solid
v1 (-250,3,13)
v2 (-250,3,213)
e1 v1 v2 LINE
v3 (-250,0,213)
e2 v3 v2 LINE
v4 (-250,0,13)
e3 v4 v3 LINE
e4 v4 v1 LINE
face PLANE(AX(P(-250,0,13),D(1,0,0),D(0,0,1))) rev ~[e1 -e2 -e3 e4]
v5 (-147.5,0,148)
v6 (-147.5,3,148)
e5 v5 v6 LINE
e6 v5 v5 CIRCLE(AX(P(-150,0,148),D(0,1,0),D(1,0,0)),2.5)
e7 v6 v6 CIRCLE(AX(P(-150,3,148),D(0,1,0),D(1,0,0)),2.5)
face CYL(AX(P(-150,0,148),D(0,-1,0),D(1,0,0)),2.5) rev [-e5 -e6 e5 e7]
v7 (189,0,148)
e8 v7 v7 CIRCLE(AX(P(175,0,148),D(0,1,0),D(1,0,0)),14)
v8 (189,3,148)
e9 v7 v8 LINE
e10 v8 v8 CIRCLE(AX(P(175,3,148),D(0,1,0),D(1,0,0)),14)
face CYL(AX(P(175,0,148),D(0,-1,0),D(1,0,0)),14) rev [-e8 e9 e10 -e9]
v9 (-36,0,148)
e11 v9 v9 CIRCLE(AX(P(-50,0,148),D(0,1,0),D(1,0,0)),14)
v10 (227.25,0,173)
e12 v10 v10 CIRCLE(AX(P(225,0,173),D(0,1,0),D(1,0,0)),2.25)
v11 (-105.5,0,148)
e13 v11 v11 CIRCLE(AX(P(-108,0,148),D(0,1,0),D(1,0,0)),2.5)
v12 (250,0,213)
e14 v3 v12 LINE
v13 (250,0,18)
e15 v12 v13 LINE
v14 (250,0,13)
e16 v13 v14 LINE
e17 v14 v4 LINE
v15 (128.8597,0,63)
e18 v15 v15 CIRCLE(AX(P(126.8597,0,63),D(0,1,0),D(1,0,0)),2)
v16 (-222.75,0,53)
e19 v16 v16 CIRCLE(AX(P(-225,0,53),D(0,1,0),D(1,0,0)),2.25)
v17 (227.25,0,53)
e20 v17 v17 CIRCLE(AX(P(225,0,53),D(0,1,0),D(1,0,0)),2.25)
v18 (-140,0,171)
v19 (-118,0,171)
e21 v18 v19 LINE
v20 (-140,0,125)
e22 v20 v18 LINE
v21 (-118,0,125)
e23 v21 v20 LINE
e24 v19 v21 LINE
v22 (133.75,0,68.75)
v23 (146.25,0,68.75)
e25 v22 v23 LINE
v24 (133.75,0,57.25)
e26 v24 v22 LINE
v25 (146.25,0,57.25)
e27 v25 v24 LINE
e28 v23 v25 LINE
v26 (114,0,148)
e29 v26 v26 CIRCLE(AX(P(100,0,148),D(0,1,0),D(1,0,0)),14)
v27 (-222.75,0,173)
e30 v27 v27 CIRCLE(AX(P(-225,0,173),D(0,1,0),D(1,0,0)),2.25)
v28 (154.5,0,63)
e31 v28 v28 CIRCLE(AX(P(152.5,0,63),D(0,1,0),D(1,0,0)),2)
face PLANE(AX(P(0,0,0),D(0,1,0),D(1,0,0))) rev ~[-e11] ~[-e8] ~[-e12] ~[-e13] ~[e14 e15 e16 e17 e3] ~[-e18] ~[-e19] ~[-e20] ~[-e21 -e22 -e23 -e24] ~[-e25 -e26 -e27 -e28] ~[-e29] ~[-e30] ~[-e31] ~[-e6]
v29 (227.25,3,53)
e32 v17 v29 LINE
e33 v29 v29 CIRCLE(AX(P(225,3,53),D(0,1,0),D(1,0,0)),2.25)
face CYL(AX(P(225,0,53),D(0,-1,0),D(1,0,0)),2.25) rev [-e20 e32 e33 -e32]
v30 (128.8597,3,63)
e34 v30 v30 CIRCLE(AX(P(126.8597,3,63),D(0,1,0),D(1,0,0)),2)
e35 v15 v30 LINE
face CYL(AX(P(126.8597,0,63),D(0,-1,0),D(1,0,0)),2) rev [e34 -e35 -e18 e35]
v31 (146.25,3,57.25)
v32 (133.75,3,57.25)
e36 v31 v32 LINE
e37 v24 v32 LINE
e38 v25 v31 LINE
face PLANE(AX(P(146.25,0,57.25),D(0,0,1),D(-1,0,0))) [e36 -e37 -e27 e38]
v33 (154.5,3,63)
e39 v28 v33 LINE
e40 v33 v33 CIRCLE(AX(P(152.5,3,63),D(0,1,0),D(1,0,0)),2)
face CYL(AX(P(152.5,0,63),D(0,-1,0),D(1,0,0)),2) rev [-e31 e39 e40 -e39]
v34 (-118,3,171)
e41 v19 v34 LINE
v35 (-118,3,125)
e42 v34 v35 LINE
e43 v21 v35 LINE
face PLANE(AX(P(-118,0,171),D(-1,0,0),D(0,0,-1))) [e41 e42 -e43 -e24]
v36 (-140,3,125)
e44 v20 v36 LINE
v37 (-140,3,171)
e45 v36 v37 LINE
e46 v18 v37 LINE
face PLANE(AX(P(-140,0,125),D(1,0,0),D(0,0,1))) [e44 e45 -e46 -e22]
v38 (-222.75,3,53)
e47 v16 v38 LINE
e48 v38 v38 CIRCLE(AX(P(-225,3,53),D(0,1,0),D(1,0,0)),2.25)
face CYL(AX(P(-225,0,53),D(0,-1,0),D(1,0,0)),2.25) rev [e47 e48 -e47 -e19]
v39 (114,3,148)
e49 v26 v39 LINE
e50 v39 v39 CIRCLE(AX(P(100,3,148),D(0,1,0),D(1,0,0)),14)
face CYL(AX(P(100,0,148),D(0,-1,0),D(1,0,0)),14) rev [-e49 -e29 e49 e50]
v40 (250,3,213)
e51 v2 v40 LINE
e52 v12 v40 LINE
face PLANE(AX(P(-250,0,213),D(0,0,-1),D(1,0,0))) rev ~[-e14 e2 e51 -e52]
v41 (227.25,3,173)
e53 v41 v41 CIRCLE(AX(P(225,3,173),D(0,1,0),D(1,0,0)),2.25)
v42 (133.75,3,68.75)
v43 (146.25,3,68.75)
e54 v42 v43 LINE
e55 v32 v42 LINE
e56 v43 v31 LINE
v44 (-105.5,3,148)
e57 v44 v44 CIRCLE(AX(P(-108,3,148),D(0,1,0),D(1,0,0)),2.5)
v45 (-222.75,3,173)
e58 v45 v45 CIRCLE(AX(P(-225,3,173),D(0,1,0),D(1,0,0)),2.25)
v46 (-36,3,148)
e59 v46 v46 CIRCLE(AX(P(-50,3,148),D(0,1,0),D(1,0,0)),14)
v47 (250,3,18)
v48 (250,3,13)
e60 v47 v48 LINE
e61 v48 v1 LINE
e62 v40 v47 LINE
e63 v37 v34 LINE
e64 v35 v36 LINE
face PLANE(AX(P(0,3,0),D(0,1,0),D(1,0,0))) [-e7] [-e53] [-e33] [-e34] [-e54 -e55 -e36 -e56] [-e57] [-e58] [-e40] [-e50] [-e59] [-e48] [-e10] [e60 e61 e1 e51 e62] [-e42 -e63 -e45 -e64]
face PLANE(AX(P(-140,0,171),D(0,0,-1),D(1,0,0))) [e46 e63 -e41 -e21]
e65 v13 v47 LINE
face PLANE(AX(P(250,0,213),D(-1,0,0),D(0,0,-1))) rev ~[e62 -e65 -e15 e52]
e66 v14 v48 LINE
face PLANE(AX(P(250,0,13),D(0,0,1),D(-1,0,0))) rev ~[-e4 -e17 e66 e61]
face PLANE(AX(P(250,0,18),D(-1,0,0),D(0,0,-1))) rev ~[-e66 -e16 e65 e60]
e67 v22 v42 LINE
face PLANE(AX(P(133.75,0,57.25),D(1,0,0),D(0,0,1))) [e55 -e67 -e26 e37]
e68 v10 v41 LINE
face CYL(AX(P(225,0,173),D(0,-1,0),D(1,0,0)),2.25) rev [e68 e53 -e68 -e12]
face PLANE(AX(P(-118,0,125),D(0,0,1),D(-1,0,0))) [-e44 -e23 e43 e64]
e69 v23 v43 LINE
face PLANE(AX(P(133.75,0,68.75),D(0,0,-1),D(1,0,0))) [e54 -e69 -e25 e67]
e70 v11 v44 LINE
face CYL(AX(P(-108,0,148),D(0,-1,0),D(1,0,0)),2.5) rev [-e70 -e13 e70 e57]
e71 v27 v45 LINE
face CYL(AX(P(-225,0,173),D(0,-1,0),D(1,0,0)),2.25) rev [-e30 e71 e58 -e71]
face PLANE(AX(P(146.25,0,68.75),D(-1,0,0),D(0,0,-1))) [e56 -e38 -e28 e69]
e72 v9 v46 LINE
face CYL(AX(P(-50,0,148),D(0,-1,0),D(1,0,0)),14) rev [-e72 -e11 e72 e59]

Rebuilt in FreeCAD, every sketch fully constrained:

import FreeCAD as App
import Part
import Sketcher
from FreeCAD import Vector


def add_polygon(sketch, points):
    """Adds a closed chain of lines whose ends are joined by coincident constraints."""
    first, n = sketch.GeometryCount, len(points)
    for a, b in zip(points, points[1:] + points[:1]):
        sketch.addGeometry(Part.LineSegment(App.Vector(*a, 0), App.Vector(*b, 0)), False)
    for i in range(n):
        sketch.addConstraint(Sketcher.Constraint("Coincident", first + i, 2, first + (i + 1) % n, 1))

doc = App.newDocument("Part")
body = doc.addObject("PartDesign::Body", "Body")

sketch1 = body.newObject("Sketcher::SketchObject", "Sketch")
sketch1.AttachmentSupport = (doc.getObject("XZ_Plane"), [""])
sketch1.MapMode = "FlatFace"
add_polygon(sketch1, [(250, 213), (250, 13), (-250, 13), (-250, 213)])
sketch1.addGeometry(Part.Circle(Vector(-225, 173, 0), Vector(0, 0, 1), 2.2), False)
sketch1.addGeometry(Part.Circle(Vector(-150, 148, 0), Vector(0, 0, 1), 2.5), False)
add_polygon(sketch1, [(-140, 171), (-140, 125), (-118, 125), (-118, 171)])
sketch1.addGeometry(Part.Circle(Vector(-108, 148, 0), Vector(0, 0, 1), 2.5), False)
sketch1.addGeometry(Part.Circle(Vector(-50, 148, 0), Vector(0, 0, 1), 14), False)
sketch1.addGeometry(Part.Circle(Vector(225, 173, 0), Vector(0, 0, 1), 2.2), False)
sketch1.addGeometry(Part.Circle(Vector(100, 148, 0), Vector(0, 0, 1), 14), False)
sketch1.addGeometry(Part.Circle(Vector(175, 148, 0), Vector(0, 0, 1), 14), False)
sketch1.addGeometry(Part.Circle(Vector(-225, 53, 0), Vector(0, 0, 1), 2.2), False)
sketch1.addGeometry(Part.Circle(Vector(126.9, 63, 0), Vector(0, 0, 1), 2), False)
add_polygon(sketch1, [(133.8, 57.2), (146.2, 57.2), (146.2, 68.8), (133.8, 68.8)])
sketch1.addGeometry(Part.Circle(Vector(152.5, 63, 0), Vector(0, 0, 1), 2), False)
sketch1.addGeometry(Part.Circle(Vector(225, 53, 0), Vector(0, 0, 1), 2.2), False)
sketch1.addConstraint([
    Sketcher.Constraint("Vertical", 0),
    Sketcher.Constraint("Horizontal", 1),
    Sketcher.Constraint("Vertical", 2),
    Sketcher.Constraint("Horizontal", 3),
    Sketcher.Constraint("Vertical", 6),
    Sketcher.Constraint("Horizontal", 7),
    Sketcher.Constraint("Vertical", 8),
    Sketcher.Constraint("Horizontal", 9),
    Sketcher.Constraint("Horizontal", 17),
    Sketcher.Constraint("Vertical", 18),
    Sketcher.Constraint("Horizontal", 19),
    Sketcher.Constraint("Vertical", 20),
    Sketcher.Constraint("Equal", 5, 10),
    Sketcher.Constraint("Equal", 4, 12),
    Sketcher.Constraint("Equal", 11, 13),
    Sketcher.Constraint("Equal", 13, 14),
    Sketcher.Constraint("Equal", 12, 15),
    Sketcher.Constraint("Equal", 16, 21),
    Sketcher.Constraint("Equal", 15, 22),
    Sketcher.Constraint("Symmetric", 4, 3, 12, 3, -2),
    Sketcher.Constraint("Symmetric", 15, 3, 22, 3, -2),
    Sketcher.Constraint("Horizontal", 5, 3, 10, 3),
    Sketcher.Constraint("Horizontal", 10, 3, 11, 3),
    Sketcher.Constraint("Horizontal", 11, 3, 13, 3),
    Sketcher.Constraint("Horizontal", 13, 3, 14, 3),
    Sketcher.Constraint("Horizontal", 16, 3, 21, 3),
    Sketcher.Constraint("Vertical", 4, 3, 15, 3),
    Sketcher.Constraint("Diameter", 5, 5.0),
    Sketcher.Constraint("Diameter", 11, 28.0),
    Sketcher.Constraint("Diameter", 16, 4.0),
    Sketcher.Constraint("Diameter", 4, 4.5),
    Sketcher.Constraint("DistanceX", 1, 2, 1, 1, 500.0),
    Sketcher.Constraint("DistanceX", 7, 1, 7, 2, 22.0),
    Sketcher.Constraint("DistanceY", 0, 2, 0, 1, 200.0),
    Sketcher.Constraint("DistanceY", 6, 2, 6, 1, 46.0),
    Sketcher.Constraint("DistanceX", 17, 1, 17, 2, 12.5),
    Sketcher.Constraint("DistanceX", 5, 3, -1, 1, 150.0),
    Sketcher.Constraint("DistanceX", 11, 3, -1, 1, 50.0),
    Sketcher.Constraint("DistanceX", -1, 1, 13, 3, 100.0),
    Sketcher.Constraint("DistanceX", -1, 1, 0, 2, 250.0),
    Sketcher.Constraint("DistanceY", -1, 1, 0, 2, 13.0),
    Sketcher.Constraint("DistanceX", 4, 3, 5, 3, 75.0),
    Sketcher.Constraint("DistanceY", 5, 3, 4, 3, 25.0),
    Sketcher.Constraint("DistanceX", 14, 3, 12, 3, 50.0),
    Sketcher.Constraint("DistanceY", 16, 3, 12, 3, 110.0),
    Sketcher.Constraint("DistanceY", 0, 2, 22, 3, 40.0),
    Sketcher.Constraint("DistanceY", 0, 2, 21, 3, 50.0),
    Sketcher.Constraint("DistanceY", 18, 1, 18, 2, 11.5),
    Sketcher.Constraint("DistanceX", 10, 3, -1, 1, 108.0),
    Sketcher.Constraint("DistanceX", 6, 2, -1, 1, 140.0),
    Sketcher.Constraint("DistanceY", -1, 1, 6, 2, 125.0),
    Sketcher.Constraint("DistanceX", -1, 1, 21, 3, 152.5),
    Sketcher.Constraint("DistanceX", -1, 1, 17, 2, 146.25),
    Sketcher.Constraint("DistanceY", -1, 1, 17, 2, 57.25),
    Sketcher.Constraint("DistanceX", -1, 1, 16, 3, 126.8597),
])
pad1 = body.newObject("PartDesign::Pad", "Pad")
pad1.Profile = sketch1
pad1.Length = 3
pad1.Reversed = True

doc.recompute()
